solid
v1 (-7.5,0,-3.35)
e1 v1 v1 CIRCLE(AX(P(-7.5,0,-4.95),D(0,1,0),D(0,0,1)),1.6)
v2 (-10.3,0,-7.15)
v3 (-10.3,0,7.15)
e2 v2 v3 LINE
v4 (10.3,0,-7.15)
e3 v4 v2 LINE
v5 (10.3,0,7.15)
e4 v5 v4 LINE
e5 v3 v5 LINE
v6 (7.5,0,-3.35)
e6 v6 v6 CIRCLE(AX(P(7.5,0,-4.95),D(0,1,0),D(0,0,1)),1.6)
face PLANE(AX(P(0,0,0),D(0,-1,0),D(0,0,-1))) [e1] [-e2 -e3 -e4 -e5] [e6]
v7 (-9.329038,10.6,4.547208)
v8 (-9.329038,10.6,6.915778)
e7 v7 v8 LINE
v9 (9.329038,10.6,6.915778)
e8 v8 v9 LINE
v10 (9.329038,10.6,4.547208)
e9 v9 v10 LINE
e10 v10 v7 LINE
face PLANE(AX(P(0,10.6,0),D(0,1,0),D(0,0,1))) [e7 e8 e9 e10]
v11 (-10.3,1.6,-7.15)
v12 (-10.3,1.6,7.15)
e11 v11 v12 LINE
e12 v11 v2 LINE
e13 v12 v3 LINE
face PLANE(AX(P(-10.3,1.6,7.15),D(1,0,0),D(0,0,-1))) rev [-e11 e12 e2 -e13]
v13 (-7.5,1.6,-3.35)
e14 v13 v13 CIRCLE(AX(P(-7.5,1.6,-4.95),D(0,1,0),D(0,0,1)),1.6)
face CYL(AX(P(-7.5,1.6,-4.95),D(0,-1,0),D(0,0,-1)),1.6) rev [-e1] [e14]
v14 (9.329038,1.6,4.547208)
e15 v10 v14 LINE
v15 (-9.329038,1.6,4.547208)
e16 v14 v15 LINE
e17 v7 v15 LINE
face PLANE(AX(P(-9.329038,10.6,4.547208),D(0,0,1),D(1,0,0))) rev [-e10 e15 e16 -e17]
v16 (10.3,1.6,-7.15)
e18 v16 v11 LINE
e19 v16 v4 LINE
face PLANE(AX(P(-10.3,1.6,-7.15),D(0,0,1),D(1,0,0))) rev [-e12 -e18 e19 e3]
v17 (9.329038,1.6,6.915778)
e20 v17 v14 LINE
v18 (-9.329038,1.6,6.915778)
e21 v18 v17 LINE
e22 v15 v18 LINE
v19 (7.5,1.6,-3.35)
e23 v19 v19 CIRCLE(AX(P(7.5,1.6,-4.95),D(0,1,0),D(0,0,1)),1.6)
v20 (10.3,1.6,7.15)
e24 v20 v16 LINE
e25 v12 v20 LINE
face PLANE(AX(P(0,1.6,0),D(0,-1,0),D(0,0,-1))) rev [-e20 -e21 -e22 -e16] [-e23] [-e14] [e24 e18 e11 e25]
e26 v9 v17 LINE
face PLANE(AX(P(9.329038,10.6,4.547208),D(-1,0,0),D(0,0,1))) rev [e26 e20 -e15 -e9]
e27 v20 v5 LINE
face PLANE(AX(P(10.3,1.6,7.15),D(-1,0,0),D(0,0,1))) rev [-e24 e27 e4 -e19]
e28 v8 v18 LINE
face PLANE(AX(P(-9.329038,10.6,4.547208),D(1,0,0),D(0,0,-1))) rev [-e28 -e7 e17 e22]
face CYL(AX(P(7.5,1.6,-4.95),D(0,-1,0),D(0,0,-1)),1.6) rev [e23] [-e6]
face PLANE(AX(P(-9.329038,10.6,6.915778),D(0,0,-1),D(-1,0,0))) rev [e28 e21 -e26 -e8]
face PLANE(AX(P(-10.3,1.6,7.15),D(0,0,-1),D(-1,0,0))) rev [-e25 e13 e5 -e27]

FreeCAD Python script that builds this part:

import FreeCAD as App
import Part
import Sketcher

V = App.Vector
Q = App.Units.Quantity


def add_polygon(sketch, points):
    """Adds a closed chain of lines whose ends are joined by coincident constraints."""
    first, n = sketch.GeometryCount, len(points)
    for a, b in zip(points, points[1:] + points[:1]):
        sketch.addGeometry(Part.LineSegment(App.Vector(*a, 0), App.Vector(*b, 0)), False)
    for i in range(n):
        sketch.addConstraint(Sketcher.Constraint("Coincident", first + i, 2, first + (i + 1) % n, 1))

doc = App.newDocument("Part")
body = doc.addObject("PartDesign::Body", "Body")

# Sketch on XZ plane
sketch1 = body.newObject("Sketcher::SketchObject", "Sketch")
sketch1.AttachmentSupport = (doc.getObject("XZ_Plane"), [""])
sketch1.MapMode = "FlatFace"
add_polygon(sketch1, [(-10.3, -7.2), (-10.3, 7.2), (10.3, 7.2), (10.3, -7.2)])  # lines 0-3
sketch1.addGeometry(Part.Circle(V(-7.5, -5, 0), V(0, 0, 1), 1.6), False)  # 4
sketch1.addGeometry(Part.Circle(V(7.5, -5, 0), V(0, 0, 1), 1.6), False)  # 5
sketch1.addConstraint([
    Sketcher.Constraint("Vertical", 0),
    Sketcher.Constraint("Horizontal", 1),
    Sketcher.Constraint("Vertical", 2),
    Sketcher.Constraint("Horizontal", 3),
    Sketcher.Constraint("Equal", 4, 5),
    Sketcher.Constraint("Symmetric", 0, 2, 2, 2, -1, 1),
    Sketcher.Constraint("Symmetric", 4, 3, 5, 3, -2),
    Sketcher.Constraint("Diameter", 4, Q("3.2 mm")),
    Sketcher.Constraint("DistanceX", 1, 1, 1, 2, Q("20.6 mm")),
    Sketcher.Constraint("DistanceY", 0, 1, 0, 2, Q("14.3 mm")),
    Sketcher.Constraint("DistanceX", 4, 3, 5, 3, Q("15 mm")),
    Sketcher.Constraint("DistanceY", 4, 3, 0, 2, Q("12.1 mm")),
])
pad1 = body.newObject("PartDesign::Pad", "Pad")
pad1.Profile = sketch1
pad1.Length = 1.6
pad1.Reversed = True

# Sketch on XZ plane
sketch2 = body.newObject("Sketcher::SketchObject", "Sketch001")
sketch2.AttachmentSupport = (doc.getObject("XZ_Plane"), [""])
sketch2.MapMode = "FlatFace"
sketch2.AttachmentOffset = App.Placement(V(0, 0, -1.6), App.Rotation())
add_polygon(sketch2, [(-9.3, 4.5), (-9.3, 6.9), (9.3, 6.9), (9.3, 4.5)])  # lines 0-3
sketch2.addConstraint([
    Sketcher.Constraint("Vertical", 0),
    Sketcher.Constraint("Horizontal", 1),
    Sketcher.Constraint("Vertical", 2),
    Sketcher.Constraint("Horizontal", 3),
    Sketcher.Constraint("DistanceY", 0, 1, 0, 2, Q("2.36857 mm")),
    Sketcher.Constraint("DistanceX", 1, 1, 1, 2, Q("18.658077 mm")),
    Sketcher.Constraint("DistanceX", 0, 2, -1, 1, Q("9.329038 mm")),
    Sketcher.Constraint("DistanceY", -1, 1, 0, 2, Q("6.915778 mm")),
])
pad2 = body.newObject("PartDesign::Pad", "Pad001")
pad2.Profile = sketch2
pad2.Length = 9
pad2.Reversed = True

doc.recompute()
